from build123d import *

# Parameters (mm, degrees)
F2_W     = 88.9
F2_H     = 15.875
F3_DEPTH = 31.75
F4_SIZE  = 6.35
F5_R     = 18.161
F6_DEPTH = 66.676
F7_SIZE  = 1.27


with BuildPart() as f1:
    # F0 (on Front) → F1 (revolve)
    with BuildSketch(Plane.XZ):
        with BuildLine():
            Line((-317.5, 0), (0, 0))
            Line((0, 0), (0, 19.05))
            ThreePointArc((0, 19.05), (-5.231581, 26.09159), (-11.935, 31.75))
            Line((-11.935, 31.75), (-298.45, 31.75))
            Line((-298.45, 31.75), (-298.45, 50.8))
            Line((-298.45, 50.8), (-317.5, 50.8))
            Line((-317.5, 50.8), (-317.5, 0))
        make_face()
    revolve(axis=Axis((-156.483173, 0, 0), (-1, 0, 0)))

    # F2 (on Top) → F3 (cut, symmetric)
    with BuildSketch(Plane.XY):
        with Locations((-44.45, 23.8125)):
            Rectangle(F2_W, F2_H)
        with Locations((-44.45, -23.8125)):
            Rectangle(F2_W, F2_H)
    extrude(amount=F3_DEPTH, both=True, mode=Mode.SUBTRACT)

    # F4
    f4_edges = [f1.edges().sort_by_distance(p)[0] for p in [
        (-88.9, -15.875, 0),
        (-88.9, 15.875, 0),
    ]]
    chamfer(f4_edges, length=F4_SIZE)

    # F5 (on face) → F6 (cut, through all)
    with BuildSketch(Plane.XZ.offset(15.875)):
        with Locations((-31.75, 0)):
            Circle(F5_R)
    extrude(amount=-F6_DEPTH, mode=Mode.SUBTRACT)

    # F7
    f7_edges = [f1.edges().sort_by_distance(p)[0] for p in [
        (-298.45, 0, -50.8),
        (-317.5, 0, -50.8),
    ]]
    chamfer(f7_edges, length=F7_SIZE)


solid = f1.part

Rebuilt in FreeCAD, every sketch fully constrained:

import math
import FreeCAD as App
import Part
import Sketcher

V = App.Vector
Q = App.Units.Quantity


def edges_at(feature, points):
    """Names of the edges that pass closest to the given points."""
    edges = feature.Shape.Edges
    near = lambda p: min(range(len(edges)), key=lambda i: edges[i].distToShape(Part.Vertex(*p))[0])
    return sorted({f"Edge{near(p) + 1}" for p in points})


def add_polygon(sketch, points):
    """Adds a closed chain of lines whose ends are joined by coincident constraints."""
    first, n = sketch.GeometryCount, len(points)
    for a, b in zip(points, points[1:] + points[:1]):
        sketch.addGeometry(Part.LineSegment(App.Vector(*a, 0), App.Vector(*b, 0)), False)
    for i in range(n):
        sketch.addConstraint(Sketcher.Constraint("Coincident", first + i, 2, first + (i + 1) % n, 1))

doc = App.newDocument("Part")
body = doc.addObject("PartDesign::Body", "Body")

# Sketch on XZ plane
sketch1 = doc.addObject("Sketcher::SketchObject", "Sketch")
body.addObject(sketch1)
sketch1.AttachmentSupport = (doc.XZ_Plane, [""])
sketch1.MapMode = "FlatFace"
sketch1.addGeometry([
    Part.LineSegment(V(-318, 0, 0), V(0, 0, 0)),  # 0
    Part.LineSegment(V(0, 0, 0), V(0, 19, 0)),  # 1
    Part.ArcOfCircle(Part.Circle(V(-33, 0, 0), V(0, 0, 1), 38), math.radians(30), math.radians(56)),  # 2
    Part.LineSegment(V(-12, 32, 0), V(-298, 32, 0)),  # 3
    Part.LineSegment(V(-298, 32, 0), V(-298, 51, 0)),  # 4
    Part.LineSegment(V(-298, 51, 0), V(-318, 51, 0)),  # 5
    Part.LineSegment(V(-318, 51, 0), V(-318, 0, 0)),  # 6
], False)
sketch1.addConstraint([
    Sketcher.Constraint("Coincident", 0, 2, 1, 1),
    Sketcher.Constraint("Coincident", 1, 2, 2, 1),
    Sketcher.Constraint("Coincident", 2, 2, 3, 1),
    Sketcher.Constraint("Coincident", 3, 2, 4, 1),
    Sketcher.Constraint("Coincident", 4, 2, 5, 1),
    Sketcher.Constraint("Coincident", 5, 2, 6, 1),
    Sketcher.Constraint("Coincident", 6, 2, 0, 1),
    Sketcher.Constraint("Horizontal", 0),
    Sketcher.Constraint("Vertical", 1),
    Sketcher.Constraint("Horizontal", 3),
    Sketcher.Constraint("Vertical", 4),
    Sketcher.Constraint("Horizontal", 5),
    Sketcher.Constraint("Vertical", 6),
    Sketcher.Constraint("Coincident", 0, 2, -1, 1),
    Sketcher.Constraint("Equal", 5, 1),
    Sketcher.Constraint("Equal", 1, 4),
    Sketcher.Constraint("DistanceY", 6, 2, 6, 1, Q("2 in")),
    Sketcher.Constraint("DistanceX", 0, 1, 0, 2, Q("12.5 in")),
    Sketcher.Constraint("DistanceX", 5, 2, 5, 1, Q("0.75 in")),
    Sketcher.Constraint("DistanceX", 3, 2, 3, 1, 286.515),
    Sketcher.Constraint("Radius", 2, 38.099987),
])
revolution = doc.addObject("PartDesign::Revolution", "Revolution")
body.addObject(revolution)
revolution.Profile = sketch1
revolution.ReferenceAxis = (sketch1, ["H_Axis"])
revolution.Angle = 360

# Sketch on XY plane
sketch2 = doc.addObject("Sketcher::SketchObject", "Sketch001")
body.addObject(sketch2)
sketch2.AttachmentSupport = (doc.XY_Plane, [""])
sketch2.MapMode = "FlatFace"
add_polygon(sketch2, [(-89, 32), (-89, 16), (0, 16), (0, 32)])  # lines 0-3
add_polygon(sketch2, [(-89, -16), (-89, -32), (0, -32), (0, -16)])  # lines 4-7
sketch2.addConstraint([
    Sketcher.Constraint("Vertical", 0),
    Sketcher.Constraint("Horizontal", 1),
    Sketcher.Constraint("Vertical", 2),
    Sketcher.Constraint("Horizontal", 3),
    Sketcher.Constraint("Vertical", 4),
    Sketcher.Constraint("Horizontal", 5),
    Sketcher.Constraint("Vertical", 6),
    Sketcher.Constraint("Horizontal", 7),
    Sketcher.Constraint("Symmetric", 2, 2, 5, 2, -1, 1),
    Sketcher.Constraint("Symmetric", 1, 2, 6, 2, -1),
    Sketcher.Constraint("Vertical", 3, 2, 4, 2),
    Sketcher.Constraint("DistanceX", 1, 1, 1, 2, Q("3.5 in")),
    Sketcher.Constraint("DistanceY", 4, 2, 3, 2, Q("2.5 in")),
    Sketcher.Constraint("DistanceY", 0, 2, 0, 1, Q("0.625 in")),
])
pocket1 = doc.addObject("PartDesign::Pocket", "Pocket")
body.addObject(pocket1)
pocket1.Profile = sketch2
pocket1.Length = Q("2.5 in")
pocket1.Midplane = True
doc.recompute()

chamfer = doc.addObject("PartDesign::Chamfer", "Chamfer")
body.addObject(chamfer)
chamfer.Base = (pocket1, edges_at(pocket1, [(-88.9, -15.875, 0), (-88.9, 15.875, 0)]))
chamfer.Size = Q("0.25 in")

# Sketch on XZ plane
sketch3 = doc.addObject("Sketcher::SketchObject", "Sketch002")
body.addObject(sketch3)
sketch3.AttachmentSupport = (doc.XZ_Plane, [""])
sketch3.MapMode = "FlatFace"
sketch3.AttachmentOffset = App.Placement(V(0, 0, 0.625 * 25.4), App.Rotation())
sketch3.addGeometry(Part.Circle(V(-32, 0, 0), V(0, 0, 1), 18), False)
sketch3.addConstraint([
    Sketcher.Constraint("PointOnObject", 0, 3, -1),
    Sketcher.Constraint("Diameter", 0, Q("1.43 in")),
    Sketcher.Constraint("DistanceX", 0, 3, -1, 1, Q("1.25 in")),
])
pocket2 = doc.addObject("PartDesign::Pocket", "Pocket001")
body.addObject(pocket2)
pocket2.Profile = sketch3
pocket2.Type = "ThroughAll"
doc.recompute()

chamfer2 = doc.addObject("PartDesign::Chamfer", "Chamfer001")
body.addObject(chamfer2)
chamfer2.Base = (pocket2, edges_at(pocket2, [(-298.45, 0, -50.8), (-317.5, 0, -50.8)]))
chamfer2.Size = Q("0.05 in")

doc.recompute()
